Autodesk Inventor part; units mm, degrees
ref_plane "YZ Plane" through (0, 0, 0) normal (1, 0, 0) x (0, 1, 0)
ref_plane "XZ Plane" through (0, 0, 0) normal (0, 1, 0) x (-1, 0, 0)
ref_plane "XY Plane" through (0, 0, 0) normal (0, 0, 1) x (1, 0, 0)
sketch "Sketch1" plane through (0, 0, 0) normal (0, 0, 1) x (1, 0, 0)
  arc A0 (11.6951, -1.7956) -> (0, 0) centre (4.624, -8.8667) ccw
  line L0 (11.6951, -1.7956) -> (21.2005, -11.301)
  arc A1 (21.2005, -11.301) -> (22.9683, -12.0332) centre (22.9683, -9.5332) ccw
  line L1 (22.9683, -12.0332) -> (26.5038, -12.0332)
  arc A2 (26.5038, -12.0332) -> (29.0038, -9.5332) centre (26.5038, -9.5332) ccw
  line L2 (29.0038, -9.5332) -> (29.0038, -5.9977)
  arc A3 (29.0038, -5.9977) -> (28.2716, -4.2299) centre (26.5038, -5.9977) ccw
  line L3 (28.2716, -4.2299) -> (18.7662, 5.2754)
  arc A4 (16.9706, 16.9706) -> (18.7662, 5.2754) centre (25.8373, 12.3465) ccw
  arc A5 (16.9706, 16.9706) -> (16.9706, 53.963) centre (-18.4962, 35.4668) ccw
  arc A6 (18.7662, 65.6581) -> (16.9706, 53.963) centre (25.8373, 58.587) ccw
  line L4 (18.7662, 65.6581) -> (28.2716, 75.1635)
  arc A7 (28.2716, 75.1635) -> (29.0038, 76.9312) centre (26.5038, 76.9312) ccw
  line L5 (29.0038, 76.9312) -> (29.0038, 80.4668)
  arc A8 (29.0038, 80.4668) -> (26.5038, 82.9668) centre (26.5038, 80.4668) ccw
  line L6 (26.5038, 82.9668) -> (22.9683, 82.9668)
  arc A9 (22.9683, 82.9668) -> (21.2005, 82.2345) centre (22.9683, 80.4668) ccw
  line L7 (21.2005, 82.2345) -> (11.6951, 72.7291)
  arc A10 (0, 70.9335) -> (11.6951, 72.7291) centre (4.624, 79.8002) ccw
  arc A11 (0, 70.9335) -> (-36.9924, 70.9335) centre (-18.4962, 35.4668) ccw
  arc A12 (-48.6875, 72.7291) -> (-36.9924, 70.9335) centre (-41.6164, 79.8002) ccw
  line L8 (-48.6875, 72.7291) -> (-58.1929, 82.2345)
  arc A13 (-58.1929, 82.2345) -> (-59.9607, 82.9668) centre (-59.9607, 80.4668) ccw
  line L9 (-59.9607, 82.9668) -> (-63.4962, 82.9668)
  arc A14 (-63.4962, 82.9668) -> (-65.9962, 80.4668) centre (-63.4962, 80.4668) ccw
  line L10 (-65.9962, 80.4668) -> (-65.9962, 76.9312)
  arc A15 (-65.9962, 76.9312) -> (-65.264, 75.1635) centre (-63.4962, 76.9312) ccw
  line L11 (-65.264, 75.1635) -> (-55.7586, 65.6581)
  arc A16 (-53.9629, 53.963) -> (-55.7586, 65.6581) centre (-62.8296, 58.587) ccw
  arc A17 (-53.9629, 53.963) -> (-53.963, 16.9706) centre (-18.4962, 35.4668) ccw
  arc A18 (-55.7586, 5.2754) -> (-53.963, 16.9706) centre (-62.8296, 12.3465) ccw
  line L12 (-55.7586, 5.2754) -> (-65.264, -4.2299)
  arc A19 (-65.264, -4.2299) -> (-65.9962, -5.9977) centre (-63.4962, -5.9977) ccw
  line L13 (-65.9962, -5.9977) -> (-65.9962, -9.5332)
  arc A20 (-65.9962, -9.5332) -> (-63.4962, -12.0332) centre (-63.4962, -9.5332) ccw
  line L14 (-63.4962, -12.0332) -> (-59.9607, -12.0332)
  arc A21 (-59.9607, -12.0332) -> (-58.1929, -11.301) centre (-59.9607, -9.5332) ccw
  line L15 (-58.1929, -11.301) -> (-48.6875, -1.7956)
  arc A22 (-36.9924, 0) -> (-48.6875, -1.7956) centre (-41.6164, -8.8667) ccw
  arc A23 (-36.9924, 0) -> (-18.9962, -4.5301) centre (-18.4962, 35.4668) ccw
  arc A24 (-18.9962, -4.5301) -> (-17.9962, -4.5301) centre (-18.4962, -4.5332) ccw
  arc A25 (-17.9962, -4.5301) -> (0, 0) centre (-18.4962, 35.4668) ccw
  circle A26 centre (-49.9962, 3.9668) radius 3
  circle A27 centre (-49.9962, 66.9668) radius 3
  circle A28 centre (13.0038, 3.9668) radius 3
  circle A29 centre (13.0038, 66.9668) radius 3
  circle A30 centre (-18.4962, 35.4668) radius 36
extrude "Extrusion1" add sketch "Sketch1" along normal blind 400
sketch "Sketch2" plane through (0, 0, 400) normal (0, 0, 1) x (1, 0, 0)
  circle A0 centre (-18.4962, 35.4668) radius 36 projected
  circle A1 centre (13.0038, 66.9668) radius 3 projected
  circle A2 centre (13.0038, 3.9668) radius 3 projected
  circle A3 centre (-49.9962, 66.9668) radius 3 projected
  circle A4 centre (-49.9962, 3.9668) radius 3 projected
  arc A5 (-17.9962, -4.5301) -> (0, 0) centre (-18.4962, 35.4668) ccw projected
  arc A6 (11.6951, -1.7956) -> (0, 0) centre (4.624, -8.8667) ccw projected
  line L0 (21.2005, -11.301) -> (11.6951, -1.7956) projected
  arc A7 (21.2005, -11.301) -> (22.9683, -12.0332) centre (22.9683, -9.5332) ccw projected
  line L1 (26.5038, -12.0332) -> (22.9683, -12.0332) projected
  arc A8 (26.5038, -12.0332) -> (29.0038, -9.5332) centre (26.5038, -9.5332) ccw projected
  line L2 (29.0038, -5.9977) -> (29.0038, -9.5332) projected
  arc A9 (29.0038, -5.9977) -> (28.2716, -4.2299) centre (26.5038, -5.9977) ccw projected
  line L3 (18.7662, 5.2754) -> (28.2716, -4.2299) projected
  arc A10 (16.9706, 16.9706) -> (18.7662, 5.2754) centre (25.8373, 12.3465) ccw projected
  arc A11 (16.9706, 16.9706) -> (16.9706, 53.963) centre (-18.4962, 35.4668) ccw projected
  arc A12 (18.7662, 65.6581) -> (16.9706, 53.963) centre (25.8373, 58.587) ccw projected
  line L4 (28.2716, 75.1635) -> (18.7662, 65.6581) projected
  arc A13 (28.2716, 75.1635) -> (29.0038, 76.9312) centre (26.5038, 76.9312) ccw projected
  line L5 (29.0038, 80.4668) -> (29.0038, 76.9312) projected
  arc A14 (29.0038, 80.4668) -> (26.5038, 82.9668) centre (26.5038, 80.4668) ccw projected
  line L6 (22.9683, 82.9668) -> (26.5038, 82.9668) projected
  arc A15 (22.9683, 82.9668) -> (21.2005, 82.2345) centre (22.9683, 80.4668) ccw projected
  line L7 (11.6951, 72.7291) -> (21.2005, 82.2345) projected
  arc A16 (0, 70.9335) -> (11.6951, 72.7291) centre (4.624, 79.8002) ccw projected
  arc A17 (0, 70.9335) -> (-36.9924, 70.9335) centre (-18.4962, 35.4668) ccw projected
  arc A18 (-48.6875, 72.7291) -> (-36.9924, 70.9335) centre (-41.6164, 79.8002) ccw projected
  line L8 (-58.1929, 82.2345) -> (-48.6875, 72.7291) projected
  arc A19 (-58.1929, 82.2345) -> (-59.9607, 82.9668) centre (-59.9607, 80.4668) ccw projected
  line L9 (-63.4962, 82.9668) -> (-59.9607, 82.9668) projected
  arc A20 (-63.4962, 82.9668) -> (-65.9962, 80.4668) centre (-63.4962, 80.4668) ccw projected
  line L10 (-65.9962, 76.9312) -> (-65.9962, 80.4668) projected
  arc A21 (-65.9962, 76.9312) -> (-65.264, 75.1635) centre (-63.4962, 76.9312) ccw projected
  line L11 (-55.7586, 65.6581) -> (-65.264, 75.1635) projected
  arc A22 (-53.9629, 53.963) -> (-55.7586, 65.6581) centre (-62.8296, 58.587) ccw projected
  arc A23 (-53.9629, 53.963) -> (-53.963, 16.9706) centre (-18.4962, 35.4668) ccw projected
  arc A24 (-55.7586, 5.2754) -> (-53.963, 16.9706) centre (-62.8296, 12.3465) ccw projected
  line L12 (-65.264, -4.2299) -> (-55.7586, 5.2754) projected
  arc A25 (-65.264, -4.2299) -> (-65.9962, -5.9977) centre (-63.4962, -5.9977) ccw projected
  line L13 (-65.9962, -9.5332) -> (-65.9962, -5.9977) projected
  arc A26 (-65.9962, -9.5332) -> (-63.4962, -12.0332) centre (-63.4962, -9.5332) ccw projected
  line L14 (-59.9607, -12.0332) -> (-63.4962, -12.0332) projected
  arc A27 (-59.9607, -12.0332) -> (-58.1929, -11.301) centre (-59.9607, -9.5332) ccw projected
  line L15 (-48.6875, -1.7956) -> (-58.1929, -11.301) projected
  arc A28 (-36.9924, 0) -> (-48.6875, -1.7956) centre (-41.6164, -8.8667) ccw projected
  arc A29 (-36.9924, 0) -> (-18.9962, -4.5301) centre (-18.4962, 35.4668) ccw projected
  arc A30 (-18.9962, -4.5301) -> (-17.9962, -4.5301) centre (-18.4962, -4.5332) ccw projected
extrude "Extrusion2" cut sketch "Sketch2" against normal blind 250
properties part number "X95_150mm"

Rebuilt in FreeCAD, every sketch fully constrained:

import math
import FreeCAD as App
import Part
import Sketcher
from FreeCAD import Vector

doc = App.newDocument("Part")
body = doc.addObject("PartDesign::Body", "Body")

sketch1 = body.newObject("Sketcher::SketchObject", "Sketch")
sketch1.AttachmentSupport = (doc.getObject("XY_Plane"), [""])
sketch1.MapMode = "FlatFace"
sketch1.addGeometry(Part.ArcOfCircle(Part.Circle(Vector(4.624, -8.8667, 0), Vector(0, 0, 1), 10.000046), math.radians(45), math.radians(117.542122)), False)
sketch1.addGeometry(Part.LineSegment(Vector(11.6951, -1.7956, 0), Vector(21.2005, -11.301, 0)), False)
sketch1.addGeometry(Part.ArcOfCircle(Part.Circle(Vector(22.9683, -9.5332, 0), Vector(0, 0, 1), 2.500047), math.radians(-135), math.radians(-90)), False)
sketch1.addGeometry(Part.LineSegment(Vector(22.9683, -12.0332, 0), Vector(26.5038, -12.0332, 0)), False)
sketch1.addGeometry(Part.ArcOfCircle(Part.Circle(Vector(26.5038, -9.5332, 0), Vector(0, 0, 1), 2.5), math.radians(-90), math.radians(0)), False)
sketch1.addGeometry(Part.LineSegment(Vector(29.0038, -9.5332, 0), Vector(29.0038, -5.9977, 0)), False)
sketch1.addGeometry(Part.ArcOfCircle(Part.Circle(Vector(26.5038, -5.9977, 0), Vector(0, 0, 1), 2.5), math.radians(0), math.radians(45)), False)
sketch1.addGeometry(Part.LineSegment(Vector(28.2716, -4.2299, 0), Vector(18.7662, 5.2754, 0)), False)
sketch1.addGeometry(Part.ArcOfCircle(Part.Circle(Vector(25.8373, 12.3465, 0), Vector(0, 0, 1), 10.000033), math.radians(152.45737), math.radians(225)), False)
sketch1.addGeometry(Part.ArcOfCircle(Part.Circle(Vector(-18.4962, 35.4668, 0), Vector(0, 0, 1), 40.000041), math.radians(-27.542376), math.radians(27.542376)), False)
sketch1.addGeometry(Part.ArcOfCircle(Part.Circle(Vector(25.8373, 58.587, 0), Vector(0, 0, 1), 10.000046), math.radians(135), math.radians(207.542122)), False)
sketch1.addGeometry(Part.LineSegment(Vector(18.7662, 65.6581, 0), Vector(28.2716, 75.1635, 0)), False)
sketch1.addGeometry(Part.ArcOfCircle(Part.Circle(Vector(26.5038, 76.9312, 0), Vector(0, 0, 1), 2.499976), math.radians(-44.998379), math.radians(0)), False)
sketch1.addGeometry(Part.LineSegment(Vector(29.0038, 76.9312, 0), Vector(29.0038, 80.4668, 0)), False)
sketch1.addGeometry(Part.ArcOfCircle(Part.Circle(Vector(26.5038, 80.4668, 0), Vector(0, 0, 1), 2.5), math.radians(0), math.radians(90)), False)
sketch1.addGeometry(Part.LineSegment(Vector(26.5038, 82.9668, 0), Vector(22.9683, 82.9668, 0)), False)
sketch1.addGeometry(Part.ArcOfCircle(Part.Circle(Vector(22.9683, 80.4668, 0), Vector(0, 0, 1), 2.5), math.radians(90), math.radians(135.001621)), False)
sketch1.addGeometry(Part.LineSegment(Vector(21.2005, 82.2345, 0), Vector(11.6951, 72.7291, 0)), False)
sketch1.addGeometry(Part.ArcOfCircle(Part.Circle(Vector(4.624, 79.8002, 0), Vector(0, 0, 1), 9.999987), math.radians(-117.542122), math.radians(-45)), False)
sketch1.addGeometry(Part.ArcOfCircle(Part.Circle(Vector(-18.4962, 35.4668, 0), Vector(0, 0, 1), 39.999953), math.radians(62.457558), math.radians(117.542442)), False)
sketch1.addGeometry(Part.ArcOfCircle(Part.Circle(Vector(-41.6164, 79.8002, 0), Vector(0, 0, 1), 10.000046), math.radians(-135), math.radians(-62.457878)), False)
sketch1.addGeometry(Part.LineSegment(Vector(-48.6875, 72.7291, 0), Vector(-58.1929, 82.2345, 0)), False)
sketch1.addGeometry(Part.ArcOfCircle(Part.Circle(Vector(-59.9607, 80.4668, 0), Vector(0, 0, 1), 2.499976), math.radians(44.998379), math.radians(90)), False)
sketch1.addGeometry(Part.LineSegment(Vector(-59.9607, 82.9668, 0), Vector(-63.4962, 82.9668, 0)), False)
sketch1.addGeometry(Part.ArcOfCircle(Part.Circle(Vector(-63.4962, 80.4668, 0), Vector(0, 0, 1), 2.5), math.radians(90), math.radians(180)), False)
sketch1.addGeometry(Part.LineSegment(Vector(-65.9962, 80.4668, 0), Vector(-65.9962, 76.9312, 0)), False)
sketch1.addGeometry(Part.ArcOfCircle(Part.Circle(Vector(-63.4962, 76.9312, 0), Vector(0, 0, 1), 2.5), math.radians(180), math.radians(224.998379)), False)
sketch1.addGeometry(Part.LineSegment(Vector(-65.264, 75.1635, 0), Vector(-55.7586, 65.6581, 0)), False)
sketch1.addGeometry(Part.ArcOfCircle(Part.Circle(Vector(-62.8296, 58.587, 0), Vector(0, 0, 1), 9.999987), math.radians(-27.542122), math.radians(45.000405)), False)
sketch1.addGeometry(Part.ArcOfCircle(Part.Circle(Vector(-18.4962, 35.4668, 0), Vector(0, 0, 1), 40.000041), math.radians(152.457558), math.radians(207.542376)), False)
sketch1.addGeometry(Part.ArcOfCircle(Part.Circle(Vector(-62.8296, 12.3465, 0), Vector(0, 0, 1), 9.999975), math.radians(-45.000405), math.radians(27.542895)), False)
sketch1.addGeometry(Part.LineSegment(Vector(-55.7586, 5.2754, 0), Vector(-65.264, -4.2299, 0)), False)
sketch1.addGeometry(Part.ArcOfCircle(Part.Circle(Vector(-63.4962, -5.9977, 0), Vector(0, 0, 1), 2.500047), math.radians(135), math.radians(180)), False)
sketch1.addGeometry(Part.LineSegment(Vector(-65.9962, -5.9977, 0), Vector(-65.9962, -9.5332, 0)), False)
sketch1.addGeometry(Part.ArcOfCircle(Part.Circle(Vector(-63.4962, -9.5332, 0), Vector(0, 0, 1), 2.5), math.radians(180), math.radians(270)), False)
sketch1.addGeometry(Part.LineSegment(Vector(-63.4962, -12.0332, 0), Vector(-59.9607, -12.0332, 0)), False)
sketch1.addGeometry(Part.ArcOfCircle(Part.Circle(Vector(-59.9607, -9.5332, 0), Vector(0, 0, 1), 2.5), math.radians(-90), math.radians(-45)), False)
sketch1.addGeometry(Part.LineSegment(Vector(-58.1929, -11.301, 0), Vector(-48.6875, -1.7956, 0)), False)
sketch1.addGeometry(Part.ArcOfCircle(Part.Circle(Vector(-41.6164, -8.8667, 0), Vector(0, 0, 1), 9.999987), math.radians(62.457878), math.radians(135)), False)
sketch1.addGeometry(Part.ArcOfCircle(Part.Circle(Vector(-18.4962, 35.4668, 0), Vector(0, 0, 1), 39.999953), math.radians(-117.542376), math.radians(-90.716215)), False)
sketch1.addGeometry(Part.ArcOfCircle(Part.Circle(Vector(-18.4962, -4.5332, 0), Vector(0, 0, 1), 0.50001), math.radians(179.644771), math.radians(360.355229)), False)
sketch1.addGeometry(Part.ArcOfCircle(Part.Circle(Vector(-18.4962, 35.4668, 0), Vector(0, 0, 1), 40.000041), math.radians(-89.283785), math.radians(-62.457624)), False)
sketch1.addGeometry(Part.Circle(Vector(-49.9962, 3.9668, 0), Vector(0, 0, 1), 3), False)
sketch1.addGeometry(Part.Circle(Vector(13.0038, 3.9668, 0), Vector(0, 0, 1), 3), False)
sketch1.addGeometry(Part.Circle(Vector(-49.9962, 66.9668, 0), Vector(0, 0, 1), 3), False)
sketch1.addGeometry(Part.Circle(Vector(-18.4962, 35.4668, 0), Vector(0, 0, 1), 36), False)
sketch1.addGeometry(Part.Circle(Vector(13.0038, 66.9668, 0), Vector(0, 0, 1), 3), False)
sketch1.addConstraint(Sketcher.Constraint("Tangent", 0, 1, 1, 1))
sketch1.addConstraint(Sketcher.Constraint("Tangent", 1, 2, 2, 1))
sketch1.addConstraint(Sketcher.Constraint("Tangent", 2, 2, 3, 1))
sketch1.addConstraint(Sketcher.Constraint("Tangent", 3, 2, 4, 1))
sketch1.addConstraint(Sketcher.Constraint("Tangent", 4, 2, 5, 1))
sketch1.addConstraint(Sketcher.Constraint("Tangent", 5, 2, 6, 1))
sketch1.addConstraint(Sketcher.Constraint("Tangent", 6, 2, 7, 1))
sketch1.addConstraint(Sketcher.Constraint("Tangent", 7, 2, 8, 2))
sketch1.addConstraint(Sketcher.Constraint("Tangent", 8, 1, 9, 1))
sketch1.addConstraint(Sketcher.Constraint("Tangent", 9, 2, 10, 2))
sketch1.addConstraint(Sketcher.Constraint("Tangent", 10, 1, 11, 1))
sketch1.addConstraint(Sketcher.Constraint("Tangent", 11, 2, 12, 1))
sketch1.addConstraint(Sketcher.Constraint("Tangent", 12, 2, 13, 1))
sketch1.addConstraint(Sketcher.Constraint("Tangent", 13, 2, 14, 1))
sketch1.addConstraint(Sketcher.Constraint("Tangent", 14, 2, 15, 1))
sketch1.addConstraint(Sketcher.Constraint("Tangent", 15, 2, 16, 1))
sketch1.addConstraint(Sketcher.Constraint("Tangent", 16, 2, 17, 1))
sketch1.addConstraint(Sketcher.Constraint("Tangent", 17, 2, 18, 2))
sketch1.addConstraint(Sketcher.Constraint("Tangent", 18, 1, 19, 1))
sketch1.addConstraint(Sketcher.Constraint("Tangent", 19, 2, 20, 2))
sketch1.addConstraint(Sketcher.Constraint("Tangent", 20, 1, 21, 1))
sketch1.addConstraint(Sketcher.Constraint("Tangent", 21, 2, 22, 1))
sketch1.addConstraint(Sketcher.Constraint("Tangent", 22, 2, 23, 1))
sketch1.addConstraint(Sketcher.Constraint("Tangent", 23, 2, 24, 1))
sketch1.addConstraint(Sketcher.Constraint("Tangent", 24, 2, 25, 1))
sketch1.addConstraint(Sketcher.Constraint("Tangent", 25, 2, 26, 1))
sketch1.addConstraint(Sketcher.Constraint("Tangent", 26, 2, 27, 1))
sketch1.addConstraint(Sketcher.Constraint("Tangent", 27, 2, 28, 2))
sketch1.addConstraint(Sketcher.Constraint("Tangent", 28, 1, 29, 1))
sketch1.addConstraint(Sketcher.Constraint("Tangent", 29, 2, 30, 2))
sketch1.addConstraint(Sketcher.Constraint("Tangent", 30, 1, 31, 1))
sketch1.addConstraint(Sketcher.Constraint("Tangent", 31, 2, 32, 1))
sketch1.addConstraint(Sketcher.Constraint("Tangent", 32, 2, 33, 1))
sketch1.addConstraint(Sketcher.Constraint("Tangent", 33, 2, 34, 1))
sketch1.addConstraint(Sketcher.Constraint("Tangent", 34, 2, 35, 1))
sketch1.addConstraint(Sketcher.Constraint("Tangent", 35, 2, 36, 1))
sketch1.addConstraint(Sketcher.Constraint("Tangent", 36, 2, 37, 1))
sketch1.addConstraint(Sketcher.Constraint("Tangent", 37, 2, 38, 2))
sketch1.addConstraint(Sketcher.Constraint("Tangent", 38, 1, 39, 1))
sketch1.addConstraint(Sketcher.Constraint("Coincident", 39, 2, 40, 1))
sketch1.addConstraint(Sketcher.Constraint("Coincident", 40, 2, 41, 1))
sketch1.addConstraint(Sketcher.Constraint("Tangent", 41, 2, 0, 2))
sketch1.addConstraint(Sketcher.Constraint("Horizontal", 3))
sketch1.addConstraint(Sketcher.Constraint("Vertical", 5))
sketch1.addConstraint(Sketcher.Constraint("Vertical", 13))
sketch1.addConstraint(Sketcher.Constraint("Horizontal", 15))
sketch1.addConstraint(Sketcher.Constraint("Horizontal", 23))
sketch1.addConstraint(Sketcher.Constraint("Vertical", 25))
sketch1.addConstraint(Sketcher.Constraint("Vertical", 33))
sketch1.addConstraint(Sketcher.Constraint("Horizontal", 35))
sketch1.addConstraint(Sketcher.Constraint("Coincident", 41, 2, -1, 1))
sketch1.addConstraint(Sketcher.Constraint("Coincident", 19, 3, 9, 3))
sketch1.addConstraint(Sketcher.Constraint("Coincident", 29, 3, 9, 3))
sketch1.addConstraint(Sketcher.Constraint("Coincident", 39, 3, 9, 3))
sketch1.addConstraint(Sketcher.Constraint("Coincident", 41, 3, 9, 3))
sketch1.addConstraint(Sketcher.Constraint("Coincident", 45, 3, 9, 3))
sketch1.addConstraint(Sketcher.Constraint("Equal", 2, 4))
sketch1.addConstraint(Sketcher.Constraint("Equal", 4, 6))
sketch1.addConstraint(Sketcher.Constraint("Equal", 0, 8))
sketch1.addConstraint(Sketcher.Constraint("Equal", 8, 10))
sketch1.addConstraint(Sketcher.Constraint("Equal", 6, 12))
sketch1.addConstraint(Sketcher.Constraint("Equal", 12, 14))
sketch1.addConstraint(Sketcher.Constraint("Equal", 14, 16))
sketch1.addConstraint(Sketcher.Constraint("Equal", 10, 18))
sketch1.addConstraint(Sketcher.Constraint("Equal", 9, 19))
sketch1.addConstraint(Sketcher.Constraint("Equal", 18, 20))
sketch1.addConstraint(Sketcher.Constraint("Equal", 16, 22))
sketch1.addConstraint(Sketcher.Constraint("Equal", 22, 24))
sketch1.addConstraint(Sketcher.Constraint("Equal", 24, 26))
sketch1.addConstraint(Sketcher.Constraint("Equal", 20, 28))
sketch1.addConstraint(Sketcher.Constraint("Equal", 19, 29))
sketch1.addConstraint(Sketcher.Constraint("Equal", 28, 30))
sketch1.addConstraint(Sketcher.Constraint("Equal", 26, 32))
sketch1.addConstraint(Sketcher.Constraint("Equal", 32, 34))
sketch1.addConstraint(Sketcher.Constraint("Equal", 34, 36))
sketch1.addConstraint(Sketcher.Constraint("Equal", 30, 38))
sketch1.addConstraint(Sketcher.Constraint("Equal", 29, 39))
sketch1.addConstraint(Sketcher.Constraint("Equal", 39, 41))
sketch1.addConstraint(Sketcher.Constraint("Equal", 42, 43))
sketch1.addConstraint(Sketcher.Constraint("Equal", 43, 44))
sketch1.addConstraint(Sketcher.Constraint("Equal", 44, 46))
sketch1.addConstraint(Sketcher.Constraint("PointOnObject", 18, 1, -2))
sketch1.addConstraint(Sketcher.Constraint("PointOnObject", 38, 1, -1))
sketch1.addConstraint(Sketcher.Constraint("Parallel", 1, 7))
sketch1.addConstraint(Sketcher.Constraint("Perpendicular", 7, 11))
sketch1.addConstraint(Sketcher.Constraint("Parallel", 11, 17))
sketch1.addConstraint(Sketcher.Constraint("Perpendicular", 17, 21))
sketch1.addConstraint(Sketcher.Constraint("Parallel", 21, 27))
sketch1.addConstraint(Sketcher.Constraint("Perpendicular", 27, 31))
sketch1.addConstraint(Sketcher.Constraint("Parallel", 31, 37))
sketch1.addConstraint(Sketcher.Constraint("Horizontal", 18, 3, 20, 3))
sketch1.addConstraint(Sketcher.Constraint("Horizontal", 16, 3, 22, 3))
sketch1.addConstraint(Sketcher.Constraint("Horizontal", 12, 3, 26, 3))
sketch1.addConstraint(Sketcher.Constraint("Horizontal", 10, 3, 28, 3))
sketch1.addConstraint(Sketcher.Constraint("Horizontal", 8, 3, 30, 3))
sketch1.addConstraint(Sketcher.Constraint("Horizontal", 6, 3, 32, 3))
sketch1.addConstraint(Sketcher.Constraint("Horizontal", 4, 3, 34, 3))
sketch1.addConstraint(Sketcher.Constraint("Horizontal", 42, 3, 43, 3))
sketch1.addConstraint(Sketcher.Constraint("Horizontal", 44, 3, 46, 3))
sketch1.addConstraint(Sketcher.Constraint("Horizontal", 17, 2, 20, 1))
sketch1.addConstraint(Sketcher.Constraint("Horizontal", 39, 2, 40, 2))
sketch1.addConstraint(Sketcher.Constraint("Vertical", 8, 3, 10, 3))
sketch1.addConstraint(Sketcher.Constraint("Vertical", 6, 3, 12, 3))
sketch1.addConstraint(Sketcher.Constraint("Vertical", 2, 3, 16, 3))
sketch1.addConstraint(Sketcher.Constraint("Vertical", 42, 3, 44, 3))
sketch1.addConstraint(Sketcher.Constraint("Vertical", 43, 3, 46, 3))
sketch1.addConstraint(Sketcher.Constraint("Equal", 35, 5))
sketch1.addConstraint(Sketcher.Constraint("Equal", 1, 7))
sketch1.addConstraint(Sketcher.Constraint("Diameter", 42, 6.0))
sketch1.addConstraint(Sketcher.Constraint("Diameter", 45, 72.0))
sketch1.addConstraint(Sketcher.Constraint("Radius", 0, 10.0))
sketch1.addConstraint(Sketcher.Constraint("Radius", 9, 40.0))
sketch1.addConstraint(Sketcher.Constraint("Radius", 2, 2.5))
sketch1.addConstraint(Sketcher.Constraint("Radius", 40, 0.5))
sketch1.addConstraint(Sketcher.Constraint("DistanceY", 6, 2, -1, 1, 4.23))
sketch1.addConstraint(Sketcher.Constraint("DistanceY", 39, 2, -1, 1, 4.53))
sketch1.addConstraint(Sketcher.Constraint("DistanceY", 40, 3, -1, 1, 4.5332))
sketch1.addConstraint(Sketcher.Constraint("DistanceX", 42, 3, -1, 1, 49.9962))
sketch1.addConstraint(Sketcher.Constraint("DistanceY", -1, 1, 42, 3, 3.9668))
sketch1.addConstraint(Sketcher.Constraint("DistanceX", -1, 1, 43, 3, 13.0038))
sketch1.addConstraint(Sketcher.Constraint("DistanceY", -1, 1, 44, 3, 66.9668))
pad1 = body.newObject("PartDesign::Pad", "Pad")
pad1.Profile = sketch1
pad1.Length = 400

sketch2 = body.newObject("Sketcher::SketchObject", "Sketch001")
sketch2.AttachmentSupport = (doc.getObject("XY_Plane"), [""])
sketch2.MapMode = "FlatFace"
sketch2.AttachmentOffset = App.Placement(Vector(0, 0, 400), App.Rotation())
sketch2.addGeometry(Part.ArcOfCircle(Part.Circle(Vector(-18.4962, -4.5332, 0), Vector(0, 0, 1), 0.50001), math.radians(179.644771), math.radians(360.355229)), False)
sketch2.addGeometry(Part.ArcOfCircle(Part.Circle(Vector(-18.4962, 35.4668, 0), Vector(0, 0, 1), 40.000041), math.radians(-89.283785), math.radians(-62.457624)), False)
sketch2.addGeometry(Part.ArcOfCircle(Part.Circle(Vector(4.624, -8.8667, 0), Vector(0, 0, 1), 10.000046), math.radians(45), math.radians(117.542122)), False)
sketch2.addGeometry(Part.LineSegment(Vector(11.6951, -1.7956, 0), Vector(21.2005, -11.301, 0)), False)
sketch2.addGeometry(Part.ArcOfCircle(Part.Circle(Vector(22.9683, -9.5332, 0), Vector(0, 0, 1), 2.500047), math.radians(-135), math.radians(-90)), False)
sketch2.addGeometry(Part.LineSegment(Vector(22.9683, -12.0332, 0), Vector(26.5038, -12.0332, 0)), False)
sketch2.addGeometry(Part.ArcOfCircle(Part.Circle(Vector(26.5038, -9.5332, 0), Vector(0, 0, 1), 2.5), math.radians(-90), math.radians(0)), False)
sketch2.addGeometry(Part.LineSegment(Vector(29.0038, -9.5332, 0), Vector(29.0038, -5.9977, 0)), False)
sketch2.addGeometry(Part.ArcOfCircle(Part.Circle(Vector(26.5038, -5.9977, 0), Vector(0, 0, 1), 2.5), math.radians(0), math.radians(45)), False)
sketch2.addGeometry(Part.LineSegment(Vector(28.2716, -4.2299, 0), Vector(18.7662, 5.2754, 0)), False)
sketch2.addGeometry(Part.ArcOfCircle(Part.Circle(Vector(25.8373, 12.3465, 0), Vector(0, 0, 1), 10.000033), math.radians(152.45737), math.radians(225)), False)
sketch2.addGeometry(Part.ArcOfCircle(Part.Circle(Vector(-18.4962, 35.4668, 0), Vector(0, 0, 1), 40.000041), math.radians(-27.542376), math.radians(27.542376)), False)
sketch2.addGeometry(Part.ArcOfCircle(Part.Circle(Vector(25.8373, 58.587, 0), Vector(0, 0, 1), 10.000046), math.radians(135), math.radians(207.542122)), False)
sketch2.addGeometry(Part.LineSegment(Vector(18.7662, 65.6581, 0), Vector(28.2716, 75.1635, 0)), False)
sketch2.addGeometry(Part.ArcOfCircle(Part.Circle(Vector(26.5038, 76.9312, 0), Vector(0, 0, 1), 2.499976), math.radians(-44.998379), math.radians(0)), False)
sketch2.addGeometry(Part.LineSegment(Vector(29.0038, 76.9312, 0), Vector(29.0038, 80.4668, 0)), False)
sketch2.addGeometry(Part.ArcOfCircle(Part.Circle(Vector(26.5038, 80.4668, 0), Vector(0, 0, 1), 2.5), math.radians(0), math.radians(90)), False)
sketch2.addGeometry(Part.LineSegment(Vector(26.5038, 82.9668, 0), Vector(22.9683, 82.9668, 0)), False)
sketch2.addGeometry(Part.ArcOfCircle(Part.Circle(Vector(22.9683, 80.4668, 0), Vector(0, 0, 1), 2.5), math.radians(90), math.radians(135.001621)), False)
sketch2.addGeometry(Part.LineSegment(Vector(21.2005, 82.2345, 0), Vector(11.6951, 72.7291, 0)), False)
sketch2.addGeometry(Part.ArcOfCircle(Part.Circle(Vector(4.624, 79.8002, 0), Vector(0, 0, 1), 9.999987), math.radians(-117.542122), math.radians(-45)), False)
sketch2.addGeometry(Part.ArcOfCircle(Part.Circle(Vector(-18.4962, 35.4668, 0), Vector(0, 0, 1), 39.999953), math.radians(62.457558), math.radians(117.542442)), False)
sketch2.addGeometry(Part.ArcOfCircle(Part.Circle(Vector(-41.6164, 79.8002, 0), Vector(0, 0, 1), 10.000046), math.radians(-135), math.radians(-62.457878)), False)
sketch2.addGeometry(Part.LineSegment(Vector(-48.6875, 72.7291, 0), Vector(-58.1929, 82.2345, 0)), False)
sketch2.addGeometry(Part.ArcOfCircle(Part.Circle(Vector(-59.9607, 80.4668, 0), Vector(0, 0, 1), 2.499976), math.radians(44.998379), math.radians(90)), False)
sketch2.addGeometry(Part.LineSegment(Vector(-59.9607, 82.9668, 0), Vector(-63.4962, 82.9668, 0)), False)
sketch2.addGeometry(Part.ArcOfCircle(Part.Circle(Vector(-63.4962, 80.4668, 0), Vector(0, 0, 1), 2.5), math.radians(90), math.radians(180)), False)
sketch2.addGeometry(Part.LineSegment(Vector(-65.9962, 80.4668, 0), Vector(-65.9962, 76.9312, 0)), False)
sketch2.addGeometry(Part.ArcOfCircle(Part.Circle(Vector(-63.4962, 76.9312, 0), Vector(0, 0, 1), 2.5), math.radians(180), math.radians(224.998379)), False)
sketch2.addGeometry(Part.LineSegment(Vector(-65.264, 75.1635, 0), Vector(-55.7586, 65.6581, 0)), False)
sketch2.addGeometry(Part.ArcOfCircle(Part.Circle(Vector(-62.8296, 58.587, 0), Vector(0, 0, 1), 9.999987), math.radians(-27.542122), math.radians(45.000405)), False)
sketch2.addGeometry(Part.ArcOfCircle(Part.Circle(Vector(-18.4962, 35.4668, 0), Vector(0, 0, 1), 40.000041), math.radians(152.457558), math.radians(207.542376)), False)
sketch2.addGeometry(Part.ArcOfCircle(Part.Circle(Vector(-62.8296, 12.3465, 0), Vector(0, 0, 1), 9.999975), math.radians(-45.000405), math.radians(27.542895)), False)
sketch2.addGeometry(Part.LineSegment(Vector(-55.7586, 5.2754, 0), Vector(-65.264, -4.2299, 0)), False)
sketch2.addGeometry(Part.ArcOfCircle(Part.Circle(Vector(-63.4962, -5.9977, 0), Vector(0, 0, 1), 2.500047), math.radians(135), math.radians(180)), False)
sketch2.addGeometry(Part.LineSegment(Vector(-65.9962, -5.9977, 0), Vector(-65.9962, -9.5332, 0)), False)
sketch2.addGeometry(Part.ArcOfCircle(Part.Circle(Vector(-63.4962, -9.5332, 0), Vector(0, 0, 1), 2.5), math.radians(180), math.radians(270)), False)
sketch2.addGeometry(Part.LineSegment(Vector(-63.4962, -12.0332, 0), Vector(-59.9607, -12.0332, 0)), False)
sketch2.addGeometry(Part.ArcOfCircle(Part.Circle(Vector(-59.9607, -9.5332, 0), Vector(0, 0, 1), 2.5), math.radians(-90), math.radians(-45)), False)
sketch2.addGeometry(Part.LineSegment(Vector(-58.1929, -11.301, 0), Vector(-48.6875, -1.7956, 0)), False)
sketch2.addGeometry(Part.ArcOfCircle(Part.Circle(Vector(-41.6164, -8.8667, 0), Vector(0, 0, 1), 9.999987), math.radians(62.457878), math.radians(135)), False)
sketch2.addGeometry(Part.ArcOfCircle(Part.Circle(Vector(-18.4962, 35.4668, 0), Vector(0, 0, 1), 39.999953), math.radians(-117.542376), math.radians(-90.716215)), False)
sketch2.addGeometry(Part.Circle(Vector(-49.9962, 3.9668, 0), Vector(0, 0, 1), 3), False)
sketch2.addGeometry(Part.Circle(Vector(13.0038, 3.9668, 0), Vector(0, 0, 1), 3), False)
sketch2.addGeometry(Part.Circle(Vector(-49.9962, 66.9668, 0), Vector(0, 0, 1), 3), False)
sketch2.addGeometry(Part.Circle(Vector(-18.4962, 35.4668, 0), Vector(0, 0, 1), 36), False)
sketch2.addGeometry(Part.Circle(Vector(13.0038, 66.9668, 0), Vector(0, 0, 1), 3), False)
sketch2.addConstraint(Sketcher.Constraint("Coincident", 0, 2, 1, 1))
sketch2.addConstraint(Sketcher.Constraint("Tangent", 1, 2, 2, 2))
sketch2.addConstraint(Sketcher.Constraint("Tangent", 2, 1, 3, 1))
sketch2.addConstraint(Sketcher.Constraint("Tangent", 3, 2, 4, 1))
sketch2.addConstraint(Sketcher.Constraint("Tangent", 4, 2, 5, 1))
sketch2.addConstraint(Sketcher.Constraint("Tangent", 5, 2, 6, 1))
sketch2.addConstraint(Sketcher.Constraint("Tangent", 6, 2, 7, 1))
sketch2.addConstraint(Sketcher.Constraint("Tangent", 7, 2, 8, 1))
sketch2.addConstraint(Sketcher.Constraint("Tangent", 8, 2, 9, 1))
sketch2.addConstraint(Sketcher.Constraint("Tangent", 9, 2, 10, 2))
sketch2.addConstraint(Sketcher.Constraint("Tangent", 10, 1, 11, 1))
sketch2.addConstraint(Sketcher.Constraint("Tangent", 11, 2, 12, 2))
sketch2.addConstraint(Sketcher.Constraint("Tangent", 12, 1, 13, 1))
sketch2.addConstraint(Sketcher.Constraint("Tangent", 13, 2, 14, 1))
sketch2.addConstraint(Sketcher.Constraint("Tangent", 14, 2, 15, 1))
sketch2.addConstraint(Sketcher.Constraint("Tangent", 15, 2, 16, 1))
sketch2.addConstraint(Sketcher.Constraint("Tangent", 16, 2, 17, 1))
sketch2.addConstraint(Sketcher.Constraint("Tangent", 17, 2, 18, 1))
sketch2.addConstraint(Sketcher.Constraint("Tangent", 18, 2, 19, 1))
sketch2.addConstraint(Sketcher.Constraint("Tangent", 19, 2, 20, 2))
sketch2.addConstraint(Sketcher.Constraint("Tangent", 20, 1, 21, 1))
sketch2.addConstraint(Sketcher.Constraint("Tangent", 21, 2, 22, 2))
sketch2.addConstraint(Sketcher.Constraint("Tangent", 22, 1, 23, 1))
sketch2.addConstraint(Sketcher.Constraint("Tangent", 23, 2, 24, 1))
sketch2.addConstraint(Sketcher.Constraint("Tangent", 24, 2, 25, 1))
sketch2.addConstraint(Sketcher.Constraint("Tangent", 25, 2, 26, 1))
sketch2.addConstraint(Sketcher.Constraint("Tangent", 26, 2, 27, 1))
sketch2.addConstraint(Sketcher.Constraint("Tangent", 27, 2, 28, 1))
sketch2.addConstraint(Sketcher.Constraint("Tangent", 28, 2, 29, 1))
sketch2.addConstraint(Sketcher.Constraint("Tangent", 29, 2, 30, 2))
sketch2.addConstraint(Sketcher.Constraint("Tangent", 30, 1, 31, 1))
sketch2.addConstraint(Sketcher.Constraint("Tangent", 31, 2, 32, 2))
sketch2.addConstraint(Sketcher.Constraint("Tangent", 32, 1, 33, 1))
sketch2.addConstraint(Sketcher.Constraint("Tangent", 33, 2, 34, 1))
sketch2.addConstraint(Sketcher.Constraint("Tangent", 34, 2, 35, 1))
sketch2.addConstraint(Sketcher.Constraint("Tangent", 35, 2, 36, 1))
sketch2.addConstraint(Sketcher.Constraint("Tangent", 36, 2, 37, 1))
sketch2.addConstraint(Sketcher.Constraint("Tangent", 37, 2, 38, 1))
sketch2.addConstraint(Sketcher.Constraint("Tangent", 38, 2, 39, 1))
sketch2.addConstraint(Sketcher.Constraint("Tangent", 39, 2, 40, 2))
sketch2.addConstraint(Sketcher.Constraint("Tangent", 40, 1, 41, 1))
sketch2.addConstraint(Sketcher.Constraint("Coincident", 41, 2, 0, 1))
sketch2.addConstraint(Sketcher.Constraint("Horizontal", 5))
sketch2.addConstraint(Sketcher.Constraint("Vertical", 7))
sketch2.addConstraint(Sketcher.Constraint("Vertical", 15))
sketch2.addConstraint(Sketcher.Constraint("Horizontal", 17))
sketch2.addConstraint(Sketcher.Constraint("Horizontal", 25))
sketch2.addConstraint(Sketcher.Constraint("Vertical", 27))
sketch2.addConstraint(Sketcher.Constraint("Vertical", 35))
sketch2.addConstraint(Sketcher.Constraint("Horizontal", 37))
sketch2.addConstraint(Sketcher.Constraint("Coincident", 1, 2, -1, 1))
sketch2.addConstraint(Sketcher.Constraint("Coincident", 11, 3, 1, 3))
sketch2.addConstraint(Sketcher.Constraint("Coincident", 21, 3, 1, 3))
sketch2.addConstraint(Sketcher.Constraint("Coincident", 31, 3, 1, 3))
sketch2.addConstraint(Sketcher.Constraint("Coincident", 41, 3, 1, 3))
sketch2.addConstraint(Sketcher.Constraint("Coincident", 45, 3, 1, 3))
sketch2.addConstraint(Sketcher.Constraint("Equal", 4, 6))
sketch2.addConstraint(Sketcher.Constraint("Equal", 6, 8))
sketch2.addConstraint(Sketcher.Constraint("Equal", 2, 10))
sketch2.addConstraint(Sketcher.Constraint("Equal", 1, 11))
sketch2.addConstraint(Sketcher.Constraint("Equal", 10, 12))
sketch2.addConstraint(Sketcher.Constraint("Equal", 8, 14))
sketch2.addConstraint(Sketcher.Constraint("Equal", 14, 16))
sketch2.addConstraint(Sketcher.Constraint("Equal", 16, 18))
sketch2.addConstraint(Sketcher.Constraint("Equal", 12, 20))
sketch2.addConstraint(Sketcher.Constraint("Equal", 11, 21))
sketch2.addConstraint(Sketcher.Constraint("Equal", 20, 22))
sketch2.addConstraint(Sketcher.Constraint("Equal", 18, 24))
sketch2.addConstraint(Sketcher.Constraint("Equal", 24, 26))
sketch2.addConstraint(Sketcher.Constraint("Equal", 26, 28))
sketch2.addConstraint(Sketcher.Constraint("Equal", 22, 30))
sketch2.addConstraint(Sketcher.Constraint("Equal", 21, 31))
sketch2.addConstraint(Sketcher.Constraint("Equal", 30, 32))
sketch2.addConstraint(Sketcher.Constraint("Equal", 28, 34))
sketch2.addConstraint(Sketcher.Constraint("Equal", 34, 36))
sketch2.addConstraint(Sketcher.Constraint("Equal", 36, 38))
sketch2.addConstraint(Sketcher.Constraint("Equal", 32, 40))
sketch2.addConstraint(Sketcher.Constraint("Equal", 31, 41))
sketch2.addConstraint(Sketcher.Constraint("Equal", 42, 43))
sketch2.addConstraint(Sketcher.Constraint("Equal", 43, 44))
sketch2.addConstraint(Sketcher.Constraint("Equal", 44, 46))
sketch2.addConstraint(Sketcher.Constraint("PointOnObject", 20, 1, -2))
sketch2.addConstraint(Sketcher.Constraint("PointOnObject", 40, 1, -1))
sketch2.addConstraint(Sketcher.Constraint("Parallel", 3, 9))
sketch2.addConstraint(Sketcher.Constraint("Perpendicular", 9, 13))
sketch2.addConstraint(Sketcher.Constraint("Parallel", 13, 19))
sketch2.addConstraint(Sketcher.Constraint("Perpendicular", 19, 23))
sketch2.addConstraint(Sketcher.Constraint("Parallel", 23, 29))
sketch2.addConstraint(Sketcher.Constraint("Perpendicular", 29, 33))
sketch2.addConstraint(Sketcher.Constraint("Parallel", 33, 39))
sketch2.addConstraint(Sketcher.Constraint("Horizontal", 20, 3, 22, 3))
sketch2.addConstraint(Sketcher.Constraint("Horizontal", 18, 3, 24, 3))
sketch2.addConstraint(Sketcher.Constraint("Horizontal", 14, 3, 28, 3))
sketch2.addConstraint(Sketcher.Constraint("Horizontal", 12, 3, 30, 3))
sketch2.addConstraint(Sketcher.Constraint("Horizontal", 10, 3, 32, 3))
sketch2.addConstraint(Sketcher.Constraint("Horizontal", 8, 3, 34, 3))
sketch2.addConstraint(Sketcher.Constraint("Horizontal", 6, 3, 36, 3))
sketch2.addConstraint(Sketcher.Constraint("Horizontal", 42, 3, 43, 3))
sketch2.addConstraint(Sketcher.Constraint("Horizontal", 44, 3, 46, 3))
sketch2.addConstraint(Sketcher.Constraint("Horizontal", 19, 2, 22, 1))
sketch2.addConstraint(Sketcher.Constraint("Horizontal", 0, 2, 41, 2))
sketch2.addConstraint(Sketcher.Constraint("Vertical", 10, 3, 12, 3))
sketch2.addConstraint(Sketcher.Constraint("Vertical", 8, 3, 14, 3))
sketch2.addConstraint(Sketcher.Constraint("Vertical", 4, 3, 18, 3))
sketch2.addConstraint(Sketcher.Constraint("Vertical", 42, 3, 44, 3))
sketch2.addConstraint(Sketcher.Constraint("Vertical", 43, 3, 46, 3))
sketch2.addConstraint(Sketcher.Constraint("Equal", 37, 7))
sketch2.addConstraint(Sketcher.Constraint("Equal", 3, 9))
sketch2.addConstraint(Sketcher.Constraint("Diameter", 42, 6.0))
sketch2.addConstraint(Sketcher.Constraint("Diameter", 45, 72.0))
sketch2.addConstraint(Sketcher.Constraint("Radius", 1, 40.0))
sketch2.addConstraint(Sketcher.Constraint("Radius", 2, 10.0))
sketch2.addConstraint(Sketcher.Constraint("Radius", 0, 0.5))
sketch2.addConstraint(Sketcher.Constraint("Radius", 4, 2.5))
sketch2.addConstraint(Sketcher.Constraint("DistanceY", 0, 2, -1, 1, 4.53))
sketch2.addConstraint(Sketcher.Constraint("DistanceY", 8, 2, -1, 1, 4.23))
sketch2.addConstraint(Sketcher.Constraint("DistanceY", 0, 3, -1, 1, 4.5332))
sketch2.addConstraint(Sketcher.Constraint("DistanceX", 42, 3, -1, 1, 49.9962))
sketch2.addConstraint(Sketcher.Constraint("DistanceY", -1, 1, 42, 3, 3.9668))
sketch2.addConstraint(Sketcher.Constraint("DistanceX", -1, 1, 43, 3, 13.0038))
sketch2.addConstraint(Sketcher.Constraint("DistanceY", -1, 1, 44, 3, 66.9668))
pocket1 = body.newObject("PartDesign::Pocket", "Pocket")
pocket1.Profile = sketch2
pocket1.Length = 250

doc.recompute()
